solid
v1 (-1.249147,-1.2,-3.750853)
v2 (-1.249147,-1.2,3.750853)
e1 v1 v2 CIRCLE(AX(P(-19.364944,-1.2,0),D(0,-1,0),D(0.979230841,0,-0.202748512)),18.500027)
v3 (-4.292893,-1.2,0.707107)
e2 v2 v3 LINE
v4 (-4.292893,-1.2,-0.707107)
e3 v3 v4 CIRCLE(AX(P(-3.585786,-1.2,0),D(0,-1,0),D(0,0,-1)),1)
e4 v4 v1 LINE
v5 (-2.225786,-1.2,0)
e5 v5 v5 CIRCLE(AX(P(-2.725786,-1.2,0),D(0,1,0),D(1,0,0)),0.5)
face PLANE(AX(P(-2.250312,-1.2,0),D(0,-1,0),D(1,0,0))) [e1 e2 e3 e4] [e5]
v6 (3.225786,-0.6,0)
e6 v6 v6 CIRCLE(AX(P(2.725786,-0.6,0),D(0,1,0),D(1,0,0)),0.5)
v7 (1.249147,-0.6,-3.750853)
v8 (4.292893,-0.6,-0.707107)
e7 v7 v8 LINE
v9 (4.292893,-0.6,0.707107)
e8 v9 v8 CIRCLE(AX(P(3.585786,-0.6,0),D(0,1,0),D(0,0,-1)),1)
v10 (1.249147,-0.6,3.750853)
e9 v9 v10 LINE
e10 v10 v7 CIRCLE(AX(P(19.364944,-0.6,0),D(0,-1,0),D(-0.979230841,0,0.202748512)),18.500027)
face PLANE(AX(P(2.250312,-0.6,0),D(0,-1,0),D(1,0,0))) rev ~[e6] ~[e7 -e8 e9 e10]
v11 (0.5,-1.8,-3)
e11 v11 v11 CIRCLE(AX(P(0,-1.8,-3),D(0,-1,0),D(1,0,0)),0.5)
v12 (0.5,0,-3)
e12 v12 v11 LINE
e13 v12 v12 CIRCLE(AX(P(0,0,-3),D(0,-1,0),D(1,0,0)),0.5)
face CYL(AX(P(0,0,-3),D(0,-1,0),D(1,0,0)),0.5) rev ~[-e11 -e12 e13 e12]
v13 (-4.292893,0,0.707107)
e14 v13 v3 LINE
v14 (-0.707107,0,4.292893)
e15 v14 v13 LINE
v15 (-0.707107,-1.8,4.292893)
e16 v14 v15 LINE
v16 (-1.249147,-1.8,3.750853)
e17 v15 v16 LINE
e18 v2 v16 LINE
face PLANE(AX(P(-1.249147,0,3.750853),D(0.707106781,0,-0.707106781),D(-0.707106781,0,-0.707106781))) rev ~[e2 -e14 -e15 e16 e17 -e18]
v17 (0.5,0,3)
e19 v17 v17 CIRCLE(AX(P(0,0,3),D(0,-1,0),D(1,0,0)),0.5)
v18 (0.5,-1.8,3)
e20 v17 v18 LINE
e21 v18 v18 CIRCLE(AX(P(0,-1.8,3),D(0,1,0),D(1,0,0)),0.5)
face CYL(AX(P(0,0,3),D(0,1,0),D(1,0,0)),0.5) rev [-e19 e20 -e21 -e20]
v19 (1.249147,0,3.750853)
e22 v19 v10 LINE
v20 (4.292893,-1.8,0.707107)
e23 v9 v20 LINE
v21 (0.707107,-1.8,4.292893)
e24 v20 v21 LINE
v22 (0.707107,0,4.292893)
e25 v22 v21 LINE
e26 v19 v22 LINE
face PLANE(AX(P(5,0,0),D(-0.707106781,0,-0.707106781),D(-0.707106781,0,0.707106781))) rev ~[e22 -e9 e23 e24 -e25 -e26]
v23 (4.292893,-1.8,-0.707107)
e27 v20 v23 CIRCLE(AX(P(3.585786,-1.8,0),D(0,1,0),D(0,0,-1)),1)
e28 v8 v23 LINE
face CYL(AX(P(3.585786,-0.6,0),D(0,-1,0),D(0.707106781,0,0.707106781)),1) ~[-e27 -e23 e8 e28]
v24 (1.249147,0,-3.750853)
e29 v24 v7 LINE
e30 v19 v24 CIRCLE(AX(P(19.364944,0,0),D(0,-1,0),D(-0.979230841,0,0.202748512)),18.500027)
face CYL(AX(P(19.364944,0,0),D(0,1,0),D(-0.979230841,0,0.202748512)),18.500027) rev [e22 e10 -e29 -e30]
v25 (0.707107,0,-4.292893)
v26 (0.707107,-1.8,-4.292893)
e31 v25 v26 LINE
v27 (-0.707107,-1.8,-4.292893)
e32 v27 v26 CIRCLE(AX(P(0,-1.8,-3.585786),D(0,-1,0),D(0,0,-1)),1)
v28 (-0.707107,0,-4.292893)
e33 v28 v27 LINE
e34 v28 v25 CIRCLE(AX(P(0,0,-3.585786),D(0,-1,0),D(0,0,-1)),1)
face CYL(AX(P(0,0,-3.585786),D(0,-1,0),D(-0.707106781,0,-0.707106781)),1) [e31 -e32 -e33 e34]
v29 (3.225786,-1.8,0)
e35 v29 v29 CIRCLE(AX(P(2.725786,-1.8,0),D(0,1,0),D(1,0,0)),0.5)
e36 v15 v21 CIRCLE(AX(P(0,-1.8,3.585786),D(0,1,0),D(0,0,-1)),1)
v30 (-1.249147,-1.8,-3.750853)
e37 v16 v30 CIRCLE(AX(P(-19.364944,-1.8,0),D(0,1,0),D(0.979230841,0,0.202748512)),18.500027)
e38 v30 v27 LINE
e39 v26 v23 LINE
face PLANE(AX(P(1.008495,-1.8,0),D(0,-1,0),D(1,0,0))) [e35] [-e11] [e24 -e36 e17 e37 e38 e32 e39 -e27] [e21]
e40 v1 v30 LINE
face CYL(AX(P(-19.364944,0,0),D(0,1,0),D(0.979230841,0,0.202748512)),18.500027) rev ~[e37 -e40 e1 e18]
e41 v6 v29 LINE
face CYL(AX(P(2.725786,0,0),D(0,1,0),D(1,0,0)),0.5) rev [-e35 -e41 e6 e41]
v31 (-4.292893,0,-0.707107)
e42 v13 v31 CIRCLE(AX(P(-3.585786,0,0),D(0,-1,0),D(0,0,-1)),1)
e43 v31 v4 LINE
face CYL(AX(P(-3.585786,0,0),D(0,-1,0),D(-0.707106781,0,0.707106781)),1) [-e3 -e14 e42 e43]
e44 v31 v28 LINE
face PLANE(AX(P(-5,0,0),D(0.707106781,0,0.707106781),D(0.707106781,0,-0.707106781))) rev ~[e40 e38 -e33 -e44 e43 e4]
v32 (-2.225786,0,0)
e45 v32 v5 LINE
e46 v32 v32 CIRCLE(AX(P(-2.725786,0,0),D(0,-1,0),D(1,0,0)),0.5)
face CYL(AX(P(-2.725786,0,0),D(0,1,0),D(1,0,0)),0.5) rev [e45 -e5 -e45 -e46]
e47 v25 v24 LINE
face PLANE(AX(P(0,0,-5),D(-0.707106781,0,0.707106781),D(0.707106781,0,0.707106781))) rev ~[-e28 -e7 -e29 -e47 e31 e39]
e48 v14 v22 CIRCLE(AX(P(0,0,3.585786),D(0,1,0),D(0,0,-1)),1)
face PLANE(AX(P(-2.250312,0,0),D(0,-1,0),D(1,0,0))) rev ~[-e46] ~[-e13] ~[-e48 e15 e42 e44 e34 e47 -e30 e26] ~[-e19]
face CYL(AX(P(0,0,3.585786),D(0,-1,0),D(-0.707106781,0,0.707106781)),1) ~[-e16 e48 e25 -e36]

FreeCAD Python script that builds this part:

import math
import FreeCAD as App
import Part
import Sketcher

V = App.Vector
Q = App.Units.Quantity


def edges_at(feature, points):
    """Names of the edges that pass closest to the given points."""
    edges = feature.Shape.Edges
    near = lambda p: min(range(len(edges)), key=lambda i: edges[i].distToShape(Part.Vertex(*p))[0])
    return sorted({f"Edge{near(p) + 1}" for p in points})

doc = App.newDocument("Part")
body = doc.addObject("PartDesign::Body", "Body")

sketch1 = body.newObject("Sketcher::SketchObject", "Sketch")
sketch1.AttachmentSupport = (doc.getObject("XZ_Plane"), [""])
sketch1.MapMode = "FlatFace"
sketch1.addGeometry([
    Part.LineSegment(V(5, 0, 0), V(0, 5, 0)),
    Part.LineSegment(V(0, 5, 0), V(-1.249147, 3.750853, 0)),
    Part.ArcOfCircle(Part.Circle(V(-19.364944, 0, 0), V(0, 0, 1), 18.500027), math.radians(-11.697731), math.radians(11.697731)),
    Part.LineSegment(V(-1.249147, -3.750853, 0), V(0, -5, 0)),
    Part.LineSegment(V(0, -5, 0), V(5, 0, 0)),
], False)
sketch1.addConstraint([
    Sketcher.Constraint("Coincident", 0, 2, 1, 1),
    Sketcher.Constraint("Coincident", 1, 2, 2, 2),
    Sketcher.Constraint("Coincident", 2, 1, 3, 1),
    Sketcher.Constraint("Coincident", 3, 2, 4, 1),
    Sketcher.Constraint("Coincident", 4, 2, 0, 1),
    Sketcher.Constraint("Symmetric", 0, 2, 3, 2, -1, 1),
    Sketcher.Constraint("Symmetric", 1, 2, 2, 1, -1),
    Sketcher.Constraint("PointOnObject", 0, 2, -2),
    Sketcher.Constraint("PointOnObject", 4, 2, -1),
    Sketcher.Constraint("Perpendicular", 0, 1),
    Sketcher.Constraint("Perpendicular", 1, 3),
    Sketcher.Constraint("DistanceY", -1, 1, 0, 2, Q("5 mm")),
    Sketcher.Constraint("Radius", 2, Q("18.500027 mm")),
    Sketcher.Constraint("Distance", 1, Q("1.766561 mm")),
])
pad1 = body.newObject("PartDesign::Pad", "Pad")
pad1.Profile = sketch1
pad1.Length = 1.8

sketch2 = body.newObject("Sketcher::SketchObject", "Sketch001")
sketch2.AttachmentSupport = (doc.getObject("XZ_Plane"), [""])
sketch2.MapMode = "FlatFace"
sketch2.addGeometry([
    Part.ArcOfCircle(Part.Circle(V(-19.364944, 0, 0), V(0, 0, 1), 18.500027), math.radians(-11.697731), math.radians(11.697731)),
    Part.LineSegment(V(-1.249147, 3.750853, 0), V(-5, 0, 0)),
    Part.LineSegment(V(-5, 0, 0), V(-1.249147, -3.750853, 0)),
], False)
sketch2.addConstraint([
    Sketcher.Constraint("Coincident", 0, 2, 1, 1),
    Sketcher.Constraint("Coincident", 1, 2, 2, 1),
    Sketcher.Constraint("Coincident", 2, 2, 0, 1),
    Sketcher.Constraint("Symmetric", 0, 2, 2, 2, -1),
    Sketcher.Constraint("PointOnObject", 1, 2, -1),
    Sketcher.Constraint("Perpendicular", 1, 2),
    Sketcher.Constraint("DistanceX", 1, 2, -1, 1, Q("5 mm")),
    Sketcher.Constraint("Radius", 0, Q("18.500027 mm")),
    Sketcher.Constraint("Distance", 1, Q("5.304507 mm")),
])
pad2 = body.newObject("PartDesign::Pad", "Pad001")
pad2.Profile = sketch2
pad2.Length = 1.2

sketch3 = body.newObject("Sketcher::SketchObject", "Sketch002")
sketch3.AttachmentSupport = (doc.getObject("XZ_Plane"), [""])
sketch3.MapMode = "FlatFace"
sketch3.addGeometry([
    Part.ArcOfCircle(Part.Circle(V(19.364944, 0, 0), V(0, 0, 1), 18.500027), math.radians(168.302269), math.radians(191.697731)),
    Part.LineSegment(V(1.249147, -3.750853, 0), V(5, 0, 0)),
    Part.LineSegment(V(5, 0, 0), V(1.249147, 3.750853, 0)),
], False)
sketch3.addConstraint([
    Sketcher.Constraint("Coincident", 0, 2, 1, 1),
    Sketcher.Constraint("Coincident", 1, 2, 2, 1),
    Sketcher.Constraint("Coincident", 2, 2, 0, 1),
    Sketcher.Constraint("Symmetric", 0, 2, 2, 2, -1),
    Sketcher.Constraint("PointOnObject", 1, 2, -1),
    Sketcher.Constraint("Perpendicular", 1, 2),
    Sketcher.Constraint("DistanceX", -1, 1, 1, 2, Q("5 mm")),
    Sketcher.Constraint("Radius", 0, Q("18.500027 mm")),
    Sketcher.Constraint("Distance", 1, Q("5.304507 mm")),
])
pocket1 = body.newObject("PartDesign::Pocket", "Pocket")
pocket1.Profile = sketch3
pocket1.Length = 0.6
pocket1.Reversed = True
doc.recompute()

fillet = body.newObject("PartDesign::Fillet", "Fillet")
fillet.Base = (pocket1, edges_at(pocket1, [
    (0, -0.9, 5),
    (5, -1.2, 0),
    (0, -0.9, -5),
    (-5, -0.6, 0),
]))
fillet.Radius = 1

sketch4 = body.newObject("Sketcher::SketchObject", "Sketch003")
sketch4.AttachmentSupport = (doc.getObject("XZ_Plane"), [""])
sketch4.MapMode = "FlatFace"
sketch4.addGeometry([
    Part.Circle(V(-2.725786, 0, 0), V(0, 0, 1), 0.5),
    Part.Circle(V(2.725786, 0, 0), V(0, 0, 1), 0.5),
    Part.Circle(V(0, 3, 0), V(0, 0, 1), 0.5),
    Part.Circle(V(0, -3, 0), V(0, 0, 1), 0.5),
], False)
sketch4.addConstraint([
    Sketcher.Constraint("Equal", 0, 1),
    Sketcher.Constraint("Equal", 1, 2),
    Sketcher.Constraint("Equal", 2, 3),
    Sketcher.Constraint("Symmetric", 0, 3, 1, 3, -1, 1),
    Sketcher.Constraint("Symmetric", 2, 3, 3, 3, -1, 1),
    Sketcher.Constraint("PointOnObject", 0, 3, -1),
    Sketcher.Constraint("PointOnObject", 2, 3, -2),
    Sketcher.Constraint("Diameter", 0, Q("1 mm")),
    Sketcher.Constraint("DistanceY", -1, 1, 2, 3, Q("3 mm")),
    Sketcher.Constraint("DistanceX", 0, 3, 1, 3, Q("5.451572 mm")),
])
pocket2 = body.newObject("PartDesign::Pocket", "Pocket001")
pocket2.Profile = sketch4
pocket2.Length = 25
pocket2.Midplane = True

doc.recompute()
